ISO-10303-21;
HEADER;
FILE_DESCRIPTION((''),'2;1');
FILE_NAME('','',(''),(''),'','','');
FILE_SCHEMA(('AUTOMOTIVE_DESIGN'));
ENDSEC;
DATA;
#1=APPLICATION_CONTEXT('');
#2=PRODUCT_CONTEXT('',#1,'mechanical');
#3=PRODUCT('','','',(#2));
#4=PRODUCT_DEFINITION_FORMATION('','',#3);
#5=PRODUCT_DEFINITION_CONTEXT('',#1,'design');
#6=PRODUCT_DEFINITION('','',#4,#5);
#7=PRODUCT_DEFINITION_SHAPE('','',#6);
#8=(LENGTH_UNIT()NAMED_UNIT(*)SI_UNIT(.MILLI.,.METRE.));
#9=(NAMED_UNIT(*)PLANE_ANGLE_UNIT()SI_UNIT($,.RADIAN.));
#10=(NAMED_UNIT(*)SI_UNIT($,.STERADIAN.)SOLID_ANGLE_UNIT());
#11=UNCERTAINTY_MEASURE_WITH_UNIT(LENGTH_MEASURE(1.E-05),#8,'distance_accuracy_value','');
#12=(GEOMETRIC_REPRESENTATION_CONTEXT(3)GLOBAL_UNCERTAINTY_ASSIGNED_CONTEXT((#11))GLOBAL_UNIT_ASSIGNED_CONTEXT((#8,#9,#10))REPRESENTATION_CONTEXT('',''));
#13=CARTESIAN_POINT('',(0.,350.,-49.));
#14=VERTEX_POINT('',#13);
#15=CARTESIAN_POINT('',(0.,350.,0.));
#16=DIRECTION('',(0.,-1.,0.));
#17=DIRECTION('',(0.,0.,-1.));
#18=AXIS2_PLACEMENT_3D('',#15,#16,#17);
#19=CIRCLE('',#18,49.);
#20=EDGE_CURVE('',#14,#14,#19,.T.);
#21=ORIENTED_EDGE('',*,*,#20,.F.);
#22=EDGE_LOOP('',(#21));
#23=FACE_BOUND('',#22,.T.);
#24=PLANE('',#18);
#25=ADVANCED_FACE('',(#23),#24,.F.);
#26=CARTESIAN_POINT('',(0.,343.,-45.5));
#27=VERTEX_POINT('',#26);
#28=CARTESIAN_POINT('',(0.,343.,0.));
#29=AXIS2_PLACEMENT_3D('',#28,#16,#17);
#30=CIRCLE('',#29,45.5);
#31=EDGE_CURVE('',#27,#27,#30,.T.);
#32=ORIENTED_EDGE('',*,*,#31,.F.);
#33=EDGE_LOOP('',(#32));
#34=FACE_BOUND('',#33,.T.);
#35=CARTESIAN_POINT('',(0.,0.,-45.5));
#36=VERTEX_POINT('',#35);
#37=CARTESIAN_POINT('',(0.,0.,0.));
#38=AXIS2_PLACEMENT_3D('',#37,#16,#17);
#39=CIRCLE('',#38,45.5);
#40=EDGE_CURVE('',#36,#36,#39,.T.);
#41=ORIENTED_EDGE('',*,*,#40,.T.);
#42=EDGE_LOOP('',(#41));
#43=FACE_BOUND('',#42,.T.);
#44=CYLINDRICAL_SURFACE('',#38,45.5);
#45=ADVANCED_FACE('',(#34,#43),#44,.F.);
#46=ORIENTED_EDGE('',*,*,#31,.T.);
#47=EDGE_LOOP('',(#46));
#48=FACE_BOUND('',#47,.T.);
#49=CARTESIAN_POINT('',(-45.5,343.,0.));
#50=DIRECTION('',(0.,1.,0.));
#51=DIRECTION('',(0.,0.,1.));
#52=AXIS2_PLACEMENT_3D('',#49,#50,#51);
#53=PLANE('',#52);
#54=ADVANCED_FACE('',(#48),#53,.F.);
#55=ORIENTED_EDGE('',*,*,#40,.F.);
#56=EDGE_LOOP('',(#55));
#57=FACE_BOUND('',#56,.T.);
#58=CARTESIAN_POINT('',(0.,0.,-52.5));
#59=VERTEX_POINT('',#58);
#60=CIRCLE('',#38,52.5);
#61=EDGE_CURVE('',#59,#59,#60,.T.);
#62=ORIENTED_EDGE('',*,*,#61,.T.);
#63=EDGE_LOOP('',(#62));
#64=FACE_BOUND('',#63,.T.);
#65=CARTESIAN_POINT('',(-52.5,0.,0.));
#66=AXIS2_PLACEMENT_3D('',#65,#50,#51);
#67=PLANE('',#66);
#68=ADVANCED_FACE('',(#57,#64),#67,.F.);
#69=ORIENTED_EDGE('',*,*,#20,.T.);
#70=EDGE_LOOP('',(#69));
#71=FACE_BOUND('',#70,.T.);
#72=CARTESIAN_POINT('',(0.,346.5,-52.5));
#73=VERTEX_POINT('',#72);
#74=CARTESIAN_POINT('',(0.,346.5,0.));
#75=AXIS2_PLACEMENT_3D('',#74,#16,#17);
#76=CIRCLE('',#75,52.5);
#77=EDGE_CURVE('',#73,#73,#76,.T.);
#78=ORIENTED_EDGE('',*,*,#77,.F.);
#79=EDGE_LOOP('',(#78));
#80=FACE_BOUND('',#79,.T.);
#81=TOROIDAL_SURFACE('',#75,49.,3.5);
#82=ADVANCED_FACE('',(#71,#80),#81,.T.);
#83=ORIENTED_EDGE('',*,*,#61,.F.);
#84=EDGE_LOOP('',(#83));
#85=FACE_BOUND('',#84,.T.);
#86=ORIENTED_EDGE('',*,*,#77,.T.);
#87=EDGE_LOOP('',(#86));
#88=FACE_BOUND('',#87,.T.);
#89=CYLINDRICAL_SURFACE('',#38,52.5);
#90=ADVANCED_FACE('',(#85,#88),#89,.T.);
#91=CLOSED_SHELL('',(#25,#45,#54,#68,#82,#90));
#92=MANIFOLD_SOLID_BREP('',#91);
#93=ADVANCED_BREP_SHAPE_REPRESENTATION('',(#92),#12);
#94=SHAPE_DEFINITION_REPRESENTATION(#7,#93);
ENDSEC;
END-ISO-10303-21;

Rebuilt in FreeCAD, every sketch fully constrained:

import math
import FreeCAD as App
import Part
import Sketcher
from FreeCAD import Vector
Q = App.Units.Quantity

doc = App.newDocument("Part")
body = doc.addObject("PartDesign::Body", "Body")

sketch1 = body.newObject("Sketcher::SketchObject", "Sketch")
sketch1.AttachmentSupport = (doc.getObject("XY_Plane"), [""])
sketch1.MapMode = "FlatFace"
sketch1.addGeometry(Part.LineSegment(Vector(0, 350, 0), Vector(-49, 350, 0)), False)
sketch1.addGeometry(Part.ArcOfCircle(Part.Circle(Vector(-49, 346.5, 0), Vector(0, 0, 1), 3.5), math.radians(90), math.radians(180)), False)
sketch1.addGeometry(Part.LineSegment(Vector(-52.5, 346.5, 0), Vector(-52.5, 0, 0)), False)
sketch1.addGeometry(Part.LineSegment(Vector(-52.5, 0, 0), Vector(-45.5, 0, 0)), False)
sketch1.addGeometry(Part.LineSegment(Vector(-45.5, 0, 0), Vector(-45.5, 343, 0)), False)
sketch1.addGeometry(Part.LineSegment(Vector(-45.5, 343, 0), Vector(0, 343, 0)), False)
sketch1.addGeometry(Part.LineSegment(Vector(0, 343, 0), Vector(0, 350, 0)), False)
sketch1.addConstraint(Sketcher.Constraint("Tangent", 0, 2, 1, 1))
sketch1.addConstraint(Sketcher.Constraint("Tangent", 1, 2, 2, 1))
sketch1.addConstraint(Sketcher.Constraint("Coincident", 2, 2, 3, 1))
sketch1.addConstraint(Sketcher.Constraint("Coincident", 3, 2, 4, 1))
sketch1.addConstraint(Sketcher.Constraint("Coincident", 4, 2, 5, 1))
sketch1.addConstraint(Sketcher.Constraint("Coincident", 5, 2, 6, 1))
sketch1.addConstraint(Sketcher.Constraint("Coincident", 6, 2, 0, 1))
sketch1.addConstraint(Sketcher.Constraint("Horizontal", 0))
sketch1.addConstraint(Sketcher.Constraint("Vertical", 2))
sketch1.addConstraint(Sketcher.Constraint("Horizontal", 3))
sketch1.addConstraint(Sketcher.Constraint("Vertical", 4))
sketch1.addConstraint(Sketcher.Constraint("Horizontal", 5))
sketch1.addConstraint(Sketcher.Constraint("Vertical", 6))
sketch1.addConstraint(Sketcher.Constraint("PointOnObject", 2, 2, -1))
sketch1.addConstraint(Sketcher.Constraint("PointOnObject", 5, 2, -2))
sketch1.addConstraint(Sketcher.Constraint("Equal", 3, 6))
sketch1.addConstraint(Sketcher.Constraint("Radius", 1, Q("3.5 mm")))
sketch1.addConstraint(Sketcher.Constraint("DistanceX", 0, 2, 0, 1, Q("49 mm")))
sketch1.addConstraint(Sketcher.Constraint("DistanceX", 3, 1, 3, 2, Q("7 mm")))
sketch1.addConstraint(Sketcher.Constraint("DistanceY", 4, 1, 4, 2, Q("343 mm")))
revolution = body.newObject("PartDesign::Revolution", "Revolution")
revolution.Profile = sketch1
revolution.ReferenceAxis = (sketch1, ["V_Axis"])
revolution.Angle = 360

doc.recompute()
